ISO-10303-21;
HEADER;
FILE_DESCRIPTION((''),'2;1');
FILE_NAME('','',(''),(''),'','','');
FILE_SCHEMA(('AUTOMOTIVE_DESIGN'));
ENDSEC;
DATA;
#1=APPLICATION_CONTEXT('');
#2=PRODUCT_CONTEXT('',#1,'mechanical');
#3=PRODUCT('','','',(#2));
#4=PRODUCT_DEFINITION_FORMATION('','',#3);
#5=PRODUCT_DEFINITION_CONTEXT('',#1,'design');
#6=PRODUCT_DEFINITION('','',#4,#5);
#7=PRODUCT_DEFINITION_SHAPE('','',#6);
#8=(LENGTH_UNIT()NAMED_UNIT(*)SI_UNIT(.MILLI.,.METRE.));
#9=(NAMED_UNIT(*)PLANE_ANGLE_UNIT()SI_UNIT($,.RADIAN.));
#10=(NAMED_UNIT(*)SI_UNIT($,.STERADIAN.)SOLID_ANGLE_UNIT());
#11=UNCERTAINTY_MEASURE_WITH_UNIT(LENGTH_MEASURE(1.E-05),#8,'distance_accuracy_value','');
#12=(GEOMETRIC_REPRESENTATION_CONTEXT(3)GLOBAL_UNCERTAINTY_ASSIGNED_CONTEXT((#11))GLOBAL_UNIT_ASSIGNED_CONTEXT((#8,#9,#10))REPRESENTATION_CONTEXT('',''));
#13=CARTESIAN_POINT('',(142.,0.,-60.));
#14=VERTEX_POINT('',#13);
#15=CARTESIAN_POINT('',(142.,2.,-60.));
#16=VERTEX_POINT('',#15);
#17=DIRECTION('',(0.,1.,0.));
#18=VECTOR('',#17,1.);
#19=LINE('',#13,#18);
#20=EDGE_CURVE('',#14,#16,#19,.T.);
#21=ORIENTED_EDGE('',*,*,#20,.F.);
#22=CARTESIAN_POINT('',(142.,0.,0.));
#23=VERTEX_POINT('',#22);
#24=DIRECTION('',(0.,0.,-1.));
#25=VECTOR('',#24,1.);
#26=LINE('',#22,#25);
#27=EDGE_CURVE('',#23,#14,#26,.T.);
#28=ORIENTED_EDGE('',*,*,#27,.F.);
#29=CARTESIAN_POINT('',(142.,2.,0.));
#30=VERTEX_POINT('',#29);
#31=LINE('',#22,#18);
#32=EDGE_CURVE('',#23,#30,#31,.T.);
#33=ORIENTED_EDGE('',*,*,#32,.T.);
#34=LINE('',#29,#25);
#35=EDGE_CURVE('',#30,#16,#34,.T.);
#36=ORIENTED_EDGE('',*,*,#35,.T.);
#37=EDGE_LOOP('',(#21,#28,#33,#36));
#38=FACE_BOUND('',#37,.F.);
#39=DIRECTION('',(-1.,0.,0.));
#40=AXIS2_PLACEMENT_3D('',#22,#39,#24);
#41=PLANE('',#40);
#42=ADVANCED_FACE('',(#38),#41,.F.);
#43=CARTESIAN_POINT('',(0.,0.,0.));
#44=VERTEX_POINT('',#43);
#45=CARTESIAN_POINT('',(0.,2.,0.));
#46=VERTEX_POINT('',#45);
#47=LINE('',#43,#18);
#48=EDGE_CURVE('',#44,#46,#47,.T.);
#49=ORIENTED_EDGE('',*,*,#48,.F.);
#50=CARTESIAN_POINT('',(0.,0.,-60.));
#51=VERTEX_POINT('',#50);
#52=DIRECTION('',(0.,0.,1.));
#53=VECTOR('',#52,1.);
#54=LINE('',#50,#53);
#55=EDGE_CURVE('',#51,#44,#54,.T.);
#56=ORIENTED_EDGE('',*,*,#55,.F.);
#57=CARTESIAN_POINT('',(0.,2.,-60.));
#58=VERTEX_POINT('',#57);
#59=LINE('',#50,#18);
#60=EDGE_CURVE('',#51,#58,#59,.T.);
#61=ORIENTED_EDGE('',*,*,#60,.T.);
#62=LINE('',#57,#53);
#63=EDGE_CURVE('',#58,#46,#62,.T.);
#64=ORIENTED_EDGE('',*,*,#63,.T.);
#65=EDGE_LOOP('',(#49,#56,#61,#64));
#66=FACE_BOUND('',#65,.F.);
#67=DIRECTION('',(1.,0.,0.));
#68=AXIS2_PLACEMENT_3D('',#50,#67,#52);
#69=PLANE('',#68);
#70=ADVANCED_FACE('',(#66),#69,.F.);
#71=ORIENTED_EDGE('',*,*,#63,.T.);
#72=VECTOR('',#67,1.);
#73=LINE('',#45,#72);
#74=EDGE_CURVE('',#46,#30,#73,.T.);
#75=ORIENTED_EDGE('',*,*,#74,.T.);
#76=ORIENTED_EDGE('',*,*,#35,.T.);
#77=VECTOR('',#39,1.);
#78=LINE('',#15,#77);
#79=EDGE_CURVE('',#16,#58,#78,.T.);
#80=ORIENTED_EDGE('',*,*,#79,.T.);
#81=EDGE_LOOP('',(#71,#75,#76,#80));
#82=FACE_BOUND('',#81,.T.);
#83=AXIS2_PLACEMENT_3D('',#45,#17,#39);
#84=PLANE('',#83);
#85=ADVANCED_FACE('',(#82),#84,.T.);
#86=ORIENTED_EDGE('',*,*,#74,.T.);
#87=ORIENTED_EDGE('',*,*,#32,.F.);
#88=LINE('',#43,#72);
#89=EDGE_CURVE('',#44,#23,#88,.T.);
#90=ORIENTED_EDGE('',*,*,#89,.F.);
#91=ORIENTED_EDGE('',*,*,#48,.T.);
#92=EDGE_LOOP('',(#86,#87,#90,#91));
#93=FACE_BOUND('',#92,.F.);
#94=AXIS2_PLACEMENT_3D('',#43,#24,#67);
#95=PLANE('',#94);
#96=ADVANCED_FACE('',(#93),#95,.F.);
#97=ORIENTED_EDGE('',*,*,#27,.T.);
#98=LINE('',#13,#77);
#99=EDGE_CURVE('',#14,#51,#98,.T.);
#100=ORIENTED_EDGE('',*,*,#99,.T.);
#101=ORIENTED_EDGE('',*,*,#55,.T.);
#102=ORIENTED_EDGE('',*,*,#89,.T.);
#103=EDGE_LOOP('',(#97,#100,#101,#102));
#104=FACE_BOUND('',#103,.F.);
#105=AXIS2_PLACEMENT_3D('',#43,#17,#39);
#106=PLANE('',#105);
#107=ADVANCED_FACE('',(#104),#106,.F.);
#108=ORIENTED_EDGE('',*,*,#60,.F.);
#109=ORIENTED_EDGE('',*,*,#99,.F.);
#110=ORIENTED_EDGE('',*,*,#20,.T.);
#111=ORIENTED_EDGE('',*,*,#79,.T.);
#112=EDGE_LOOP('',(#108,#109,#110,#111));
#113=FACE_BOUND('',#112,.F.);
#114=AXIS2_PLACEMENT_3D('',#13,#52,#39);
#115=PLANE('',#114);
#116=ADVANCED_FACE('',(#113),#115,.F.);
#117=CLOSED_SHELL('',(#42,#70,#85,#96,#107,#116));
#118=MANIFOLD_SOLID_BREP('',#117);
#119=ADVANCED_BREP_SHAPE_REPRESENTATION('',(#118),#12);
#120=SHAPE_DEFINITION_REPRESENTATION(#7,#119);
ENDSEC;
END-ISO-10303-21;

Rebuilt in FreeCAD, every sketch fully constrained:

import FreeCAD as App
import Part
import Sketcher
from FreeCAD import Vector
Q = App.Units.Quantity


def add_polygon(sketch, points):
    """Adds a closed chain of lines whose ends are joined by coincident constraints."""
    first, n = sketch.GeometryCount, len(points)
    for a, b in zip(points, points[1:] + points[:1]):
        sketch.addGeometry(Part.LineSegment(App.Vector(*a, 0), App.Vector(*b, 0)), False)
    for i in range(n):
        sketch.addConstraint(Sketcher.Constraint("Coincident", first + i, 2, first + (i + 1) % n, 1))

doc = App.newDocument("Part")
body = doc.addObject("PartDesign::Body", "Body")

sketch1 = body.newObject("Sketcher::SketchObject", "Sketch")
sketch1.AttachmentSupport = (doc.getObject("XZ_Plane"), [""])
sketch1.MapMode = "FlatFace"
add_polygon(sketch1, [(0, -60), (0, 0), (142, 0), (142, -60)])
sketch1.addConstraint([
    Sketcher.Constraint("Vertical", 0),
    Sketcher.Constraint("Horizontal", 1),
    Sketcher.Constraint("Vertical", 2),
    Sketcher.Constraint("Horizontal", 3),
    Sketcher.Constraint("Coincident", 0, 2, -1, 1),
    Sketcher.Constraint("DistanceX", 1, 1, 1, 2, Q("142 mm")),
    Sketcher.Constraint("DistanceY", 0, 1, 0, 2, Q("60 mm")),
])
pad1 = body.newObject("PartDesign::Pad", "Pad")
pad1.Profile = sketch1
pad1.Length = 2
pad1.Reversed = True

doc.recompute()
